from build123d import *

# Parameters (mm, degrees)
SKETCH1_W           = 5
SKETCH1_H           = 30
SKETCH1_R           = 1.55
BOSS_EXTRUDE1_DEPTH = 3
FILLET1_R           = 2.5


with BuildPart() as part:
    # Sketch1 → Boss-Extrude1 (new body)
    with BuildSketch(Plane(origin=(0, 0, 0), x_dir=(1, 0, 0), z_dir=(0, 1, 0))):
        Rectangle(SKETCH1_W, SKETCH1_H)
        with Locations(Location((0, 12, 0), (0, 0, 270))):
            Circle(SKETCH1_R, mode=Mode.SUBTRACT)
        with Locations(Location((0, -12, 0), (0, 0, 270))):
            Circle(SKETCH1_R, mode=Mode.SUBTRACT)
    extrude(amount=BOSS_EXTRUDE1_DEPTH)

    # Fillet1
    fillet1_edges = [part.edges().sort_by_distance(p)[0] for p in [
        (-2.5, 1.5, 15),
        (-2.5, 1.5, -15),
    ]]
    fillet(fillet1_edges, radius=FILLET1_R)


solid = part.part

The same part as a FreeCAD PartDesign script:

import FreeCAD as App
import Part
import Sketcher
Q = App.Units.Quantity


def edges_at(feature, points):
    """Names of the edges that pass closest to the given points."""
    edges = feature.Shape.Edges
    near = lambda p: min(range(len(edges)), key=lambda i: edges[i].distToShape(Part.Vertex(*p))[0])
    return sorted({f"Edge{near(p) + 1}" for p in points})

doc = App.newDocument("Part")
params = doc.addObject("Spreadsheet::Sheet", "Params")
for row, (alias, value) in enumerate([
    ("sketch1_diameter", "3.1 mm"),
    ("sketch1_width", "5 mm"),
    ("sketch1_height", "30 mm"),
    ("pad1_length", "3 mm"),
    ("fillet_radius", "2.5 mm"),
], start=1):
    params.set(f"A{row}", alias)
    params.set(f"B{row}", "=" + value)
    params.setAlias(f"B{row}", alias)

body = doc.addObject("PartDesign::Body", "Body")

# Sketch on XZ plane
sketch1 = doc.addObject("Sketcher::SketchObject", "Sketch")
body.addObject(sketch1)
sketch1.AttachmentSupport = (doc.XZ_Plane, [""])
sketch1.MapMode = "FlatFace"
sketch1.addGeometry(Part.LineSegment(App.Vector(-2.5, -15, 0), App.Vector(-2.5, 15, 0)), False)
sketch1.addGeometry(Part.LineSegment(App.Vector(-2.5, 15, 0), App.Vector(2.5, 15, 0)), False)
sketch1.addGeometry(Part.LineSegment(App.Vector(2.5, 15, 0), App.Vector(2.5, -15, 0)), False)
sketch1.addGeometry(Part.LineSegment(App.Vector(2.5, -15, 0), App.Vector(-2.5, -15, 0)), False)
sketch1.addGeometry(Part.Circle(App.Vector(0, 12, 0), App.Vector(0, 0, 1), 1.6), False)
sketch1.addGeometry(Part.Circle(App.Vector(0, -12, 0), App.Vector(0, 0, 1), 1.6), False)
sketch1.addConstraint(Sketcher.Constraint("Coincident", 0, 2, 1, 1))
sketch1.addConstraint(Sketcher.Constraint("Coincident", 1, 2, 2, 1))
sketch1.addConstraint(Sketcher.Constraint("Coincident", 2, 2, 3, 1))
sketch1.addConstraint(Sketcher.Constraint("Coincident", 3, 2, 0, 1))
sketch1.addConstraint(Sketcher.Constraint("Vertical", 0))
sketch1.addConstraint(Sketcher.Constraint("Horizontal", 1))
sketch1.addConstraint(Sketcher.Constraint("Vertical", 2))
sketch1.addConstraint(Sketcher.Constraint("Horizontal", 3))
sketch1.addConstraint(Sketcher.Constraint("Equal", 4, 5))
sketch1.addConstraint(Sketcher.Constraint("Symmetric", 4, 3, 5, 3, -1, 1))
sketch1.addConstraint(Sketcher.Constraint("Symmetric", 0, 2, 2, 2, -1, 1))
sketch1.addConstraint(Sketcher.Constraint("PointOnObject", 4, 3, -2))
sketch1.addConstraint(Sketcher.Constraint("Diameter", 4, Q("3.1 mm")))
sketch1.addConstraint(Sketcher.Constraint("DistanceX", 1, 1, 1, 2, Q("5 mm")))
sketch1.addConstraint(Sketcher.Constraint("DistanceY", 0, 1, 0, 2, Q("30 mm")))
sketch1.addConstraint(Sketcher.Constraint("DistanceY", -1, 1, 4, 3, Q("12 mm")))
sketch1.setExpression("Constraints[12]", "Params.sketch1_diameter")
sketch1.setExpression("Constraints[13]", "Params.sketch1_width")
sketch1.setExpression("Constraints[14]", "Params.sketch1_height")
pad1 = doc.addObject("PartDesign::Pad", "Pad")
body.addObject(pad1)
pad1.Profile = sketch1
pad1.setExpression("Length", "Params.pad1_length")
pad1.Reversed = True
doc.recompute()

fillet = doc.addObject("PartDesign::Fillet", "Fillet")
body.addObject(fillet)
fillet.Base = (pad1, edges_at(pad1, [(-2.5, 1.5, 15), (-2.5, 1.5, -15)]))
fillet.setExpression("Radius", "Params.fillet_radius")

doc.recompute()
